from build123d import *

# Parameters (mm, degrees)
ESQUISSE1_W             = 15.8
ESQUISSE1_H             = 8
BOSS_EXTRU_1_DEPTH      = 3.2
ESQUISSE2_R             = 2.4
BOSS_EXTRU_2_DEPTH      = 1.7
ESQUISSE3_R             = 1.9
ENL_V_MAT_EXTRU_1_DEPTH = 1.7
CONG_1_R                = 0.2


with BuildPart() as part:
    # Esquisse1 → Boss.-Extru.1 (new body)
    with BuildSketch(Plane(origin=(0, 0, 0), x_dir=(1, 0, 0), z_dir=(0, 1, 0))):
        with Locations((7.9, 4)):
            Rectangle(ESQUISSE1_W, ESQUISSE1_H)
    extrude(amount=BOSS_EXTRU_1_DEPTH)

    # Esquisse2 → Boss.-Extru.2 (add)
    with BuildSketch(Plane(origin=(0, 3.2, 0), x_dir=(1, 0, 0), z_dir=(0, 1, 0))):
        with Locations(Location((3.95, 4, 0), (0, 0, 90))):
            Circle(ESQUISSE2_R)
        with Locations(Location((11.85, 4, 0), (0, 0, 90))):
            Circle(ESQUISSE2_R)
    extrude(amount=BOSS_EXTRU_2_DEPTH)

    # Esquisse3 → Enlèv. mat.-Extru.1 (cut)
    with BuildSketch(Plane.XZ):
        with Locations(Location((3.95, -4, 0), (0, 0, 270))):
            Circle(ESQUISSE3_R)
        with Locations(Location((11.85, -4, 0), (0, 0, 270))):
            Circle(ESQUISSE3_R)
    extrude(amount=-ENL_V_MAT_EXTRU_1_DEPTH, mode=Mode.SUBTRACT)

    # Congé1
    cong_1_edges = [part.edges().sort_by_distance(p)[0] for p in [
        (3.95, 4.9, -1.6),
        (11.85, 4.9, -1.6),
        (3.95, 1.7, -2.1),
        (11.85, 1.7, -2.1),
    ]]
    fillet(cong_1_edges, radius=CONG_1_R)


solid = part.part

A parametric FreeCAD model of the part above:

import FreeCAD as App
import Part
import Sketcher
from FreeCAD import Vector
Q = App.Units.Quantity


def edges_at(feature, points):
    """Names of the edges that pass closest to the given points."""
    edges = feature.Shape.Edges
    near = lambda p: min(range(len(edges)), key=lambda i: edges[i].distToShape(Part.Vertex(*p))[0])
    return sorted({f"Edge{near(p) + 1}" for p in points})

doc = App.newDocument("Part")
body = doc.addObject("PartDesign::Body", "Body")

# Sketch on XZ plane
sketch1 = body.newObject("Sketcher::SketchObject", "Sketch")
sketch1.AttachmentSupport = (doc.getObject("XZ_Plane"), [""])
sketch1.MapMode = "FlatFace"
sketch1.addGeometry([
    Part.LineSegment(Vector(0, -8, 0), Vector(0, 0, 0)),
    Part.LineSegment(Vector(0, 0, 0), Vector(16, 0, 0)),
    Part.LineSegment(Vector(16, 0, 0), Vector(16, -8, 0)),
    Part.LineSegment(Vector(16, -8, 0), Vector(0, -8, 0)),
], False)
sketch1.addConstraint([
    Sketcher.Constraint("Coincident", 0, 2, 1, 1),
    Sketcher.Constraint("Coincident", 1, 2, 2, 1),
    Sketcher.Constraint("Coincident", 2, 2, 3, 1),
    Sketcher.Constraint("Coincident", 3, 2, 0, 1),
    Sketcher.Constraint("Vertical", 0),
    Sketcher.Constraint("Horizontal", 1),
    Sketcher.Constraint("Vertical", 2),
    Sketcher.Constraint("Horizontal", 3),
    Sketcher.Constraint("Coincident", 0, 2, -1, 1),
    Sketcher.Constraint("DistanceY", 0, 1, 0, 2, Q("8 mm")),
    Sketcher.Constraint("DistanceX", 1, 1, 1, 2, Q("15.8 mm")),
])
pad1 = body.newObject("PartDesign::Pad", "Pad")
pad1.Profile = sketch1
pad1.Length = 3.2
pad1.Reversed = True

# Sketch on XZ plane
sketch2 = body.newObject("Sketcher::SketchObject", "Sketch001")
sketch2.AttachmentSupport = (doc.getObject("XZ_Plane"), [""])
sketch2.MapMode = "FlatFace"
sketch2.AttachmentOffset = App.Placement(Vector(0, 0, -3.2), App.Rotation())
sketch2.addGeometry([
    Part.Circle(Vector(4, -4, 0), Vector(0, 0, 1), 2.4),
    Part.Circle(Vector(11.8, -4, 0), Vector(0, 0, 1), 2.4),
], False)
sketch2.addConstraint([
    Sketcher.Constraint("Equal", 0, 1),
    Sketcher.Constraint("Horizontal", 0, 3, 1, 3),
    Sketcher.Constraint("Diameter", 0, Q("4.8 mm")),
    Sketcher.Constraint("DistanceY", 0, 3, -1, 1, Q("4 mm")),
    Sketcher.Constraint("DistanceX", 0, 3, 1, 3, Q("7.9 mm")),
    Sketcher.Constraint("DistanceX", -1, 1, 0, 3, Q("3.95 mm")),
])
pad2 = body.newObject("PartDesign::Pad", "Pad001")
pad2.Profile = sketch2
pad2.Length = 1.7
pad2.Reversed = True

# Sketch on XZ plane
sketch3 = body.newObject("Sketcher::SketchObject", "Sketch002")
sketch3.AttachmentSupport = (doc.getObject("XZ_Plane"), [""])
sketch3.MapMode = "FlatFace"
sketch3.addGeometry([
    Part.Circle(Vector(4, -4, 0), Vector(0, 0, 1), 1.9),
    Part.Circle(Vector(11.8, -4, 0), Vector(0, 0, 1), 1.9),
], False)
sketch3.addConstraint([
    Sketcher.Constraint("Equal", 0, 1),
    Sketcher.Constraint("Horizontal", 0, 3, 1, 3),
    Sketcher.Constraint("Diameter", 0, Q("3.8 mm")),
    Sketcher.Constraint("DistanceY", 0, 3, -1, 1, Q("4 mm")),
    Sketcher.Constraint("DistanceX", 0, 3, 1, 3, Q("7.9 mm")),
    Sketcher.Constraint("DistanceX", -1, 1, 0, 3, Q("3.95 mm")),
])
pocket1 = body.newObject("PartDesign::Pocket", "Pocket")
pocket1.Profile = sketch3
pocket1.Length = 1.7
doc.recompute()

fillet = body.newObject("PartDesign::Fillet", "Fillet")
fillet.Base = (pocket1, edges_at(pocket1, [
    (3.95, 4.9, -1.6),
    (11.85, 4.9, -1.6),
    (3.95, 1.7, -2.1),
    (11.85, 1.7, -2.1),
]))
fillet.Radius = 0.2

doc.recompute()
